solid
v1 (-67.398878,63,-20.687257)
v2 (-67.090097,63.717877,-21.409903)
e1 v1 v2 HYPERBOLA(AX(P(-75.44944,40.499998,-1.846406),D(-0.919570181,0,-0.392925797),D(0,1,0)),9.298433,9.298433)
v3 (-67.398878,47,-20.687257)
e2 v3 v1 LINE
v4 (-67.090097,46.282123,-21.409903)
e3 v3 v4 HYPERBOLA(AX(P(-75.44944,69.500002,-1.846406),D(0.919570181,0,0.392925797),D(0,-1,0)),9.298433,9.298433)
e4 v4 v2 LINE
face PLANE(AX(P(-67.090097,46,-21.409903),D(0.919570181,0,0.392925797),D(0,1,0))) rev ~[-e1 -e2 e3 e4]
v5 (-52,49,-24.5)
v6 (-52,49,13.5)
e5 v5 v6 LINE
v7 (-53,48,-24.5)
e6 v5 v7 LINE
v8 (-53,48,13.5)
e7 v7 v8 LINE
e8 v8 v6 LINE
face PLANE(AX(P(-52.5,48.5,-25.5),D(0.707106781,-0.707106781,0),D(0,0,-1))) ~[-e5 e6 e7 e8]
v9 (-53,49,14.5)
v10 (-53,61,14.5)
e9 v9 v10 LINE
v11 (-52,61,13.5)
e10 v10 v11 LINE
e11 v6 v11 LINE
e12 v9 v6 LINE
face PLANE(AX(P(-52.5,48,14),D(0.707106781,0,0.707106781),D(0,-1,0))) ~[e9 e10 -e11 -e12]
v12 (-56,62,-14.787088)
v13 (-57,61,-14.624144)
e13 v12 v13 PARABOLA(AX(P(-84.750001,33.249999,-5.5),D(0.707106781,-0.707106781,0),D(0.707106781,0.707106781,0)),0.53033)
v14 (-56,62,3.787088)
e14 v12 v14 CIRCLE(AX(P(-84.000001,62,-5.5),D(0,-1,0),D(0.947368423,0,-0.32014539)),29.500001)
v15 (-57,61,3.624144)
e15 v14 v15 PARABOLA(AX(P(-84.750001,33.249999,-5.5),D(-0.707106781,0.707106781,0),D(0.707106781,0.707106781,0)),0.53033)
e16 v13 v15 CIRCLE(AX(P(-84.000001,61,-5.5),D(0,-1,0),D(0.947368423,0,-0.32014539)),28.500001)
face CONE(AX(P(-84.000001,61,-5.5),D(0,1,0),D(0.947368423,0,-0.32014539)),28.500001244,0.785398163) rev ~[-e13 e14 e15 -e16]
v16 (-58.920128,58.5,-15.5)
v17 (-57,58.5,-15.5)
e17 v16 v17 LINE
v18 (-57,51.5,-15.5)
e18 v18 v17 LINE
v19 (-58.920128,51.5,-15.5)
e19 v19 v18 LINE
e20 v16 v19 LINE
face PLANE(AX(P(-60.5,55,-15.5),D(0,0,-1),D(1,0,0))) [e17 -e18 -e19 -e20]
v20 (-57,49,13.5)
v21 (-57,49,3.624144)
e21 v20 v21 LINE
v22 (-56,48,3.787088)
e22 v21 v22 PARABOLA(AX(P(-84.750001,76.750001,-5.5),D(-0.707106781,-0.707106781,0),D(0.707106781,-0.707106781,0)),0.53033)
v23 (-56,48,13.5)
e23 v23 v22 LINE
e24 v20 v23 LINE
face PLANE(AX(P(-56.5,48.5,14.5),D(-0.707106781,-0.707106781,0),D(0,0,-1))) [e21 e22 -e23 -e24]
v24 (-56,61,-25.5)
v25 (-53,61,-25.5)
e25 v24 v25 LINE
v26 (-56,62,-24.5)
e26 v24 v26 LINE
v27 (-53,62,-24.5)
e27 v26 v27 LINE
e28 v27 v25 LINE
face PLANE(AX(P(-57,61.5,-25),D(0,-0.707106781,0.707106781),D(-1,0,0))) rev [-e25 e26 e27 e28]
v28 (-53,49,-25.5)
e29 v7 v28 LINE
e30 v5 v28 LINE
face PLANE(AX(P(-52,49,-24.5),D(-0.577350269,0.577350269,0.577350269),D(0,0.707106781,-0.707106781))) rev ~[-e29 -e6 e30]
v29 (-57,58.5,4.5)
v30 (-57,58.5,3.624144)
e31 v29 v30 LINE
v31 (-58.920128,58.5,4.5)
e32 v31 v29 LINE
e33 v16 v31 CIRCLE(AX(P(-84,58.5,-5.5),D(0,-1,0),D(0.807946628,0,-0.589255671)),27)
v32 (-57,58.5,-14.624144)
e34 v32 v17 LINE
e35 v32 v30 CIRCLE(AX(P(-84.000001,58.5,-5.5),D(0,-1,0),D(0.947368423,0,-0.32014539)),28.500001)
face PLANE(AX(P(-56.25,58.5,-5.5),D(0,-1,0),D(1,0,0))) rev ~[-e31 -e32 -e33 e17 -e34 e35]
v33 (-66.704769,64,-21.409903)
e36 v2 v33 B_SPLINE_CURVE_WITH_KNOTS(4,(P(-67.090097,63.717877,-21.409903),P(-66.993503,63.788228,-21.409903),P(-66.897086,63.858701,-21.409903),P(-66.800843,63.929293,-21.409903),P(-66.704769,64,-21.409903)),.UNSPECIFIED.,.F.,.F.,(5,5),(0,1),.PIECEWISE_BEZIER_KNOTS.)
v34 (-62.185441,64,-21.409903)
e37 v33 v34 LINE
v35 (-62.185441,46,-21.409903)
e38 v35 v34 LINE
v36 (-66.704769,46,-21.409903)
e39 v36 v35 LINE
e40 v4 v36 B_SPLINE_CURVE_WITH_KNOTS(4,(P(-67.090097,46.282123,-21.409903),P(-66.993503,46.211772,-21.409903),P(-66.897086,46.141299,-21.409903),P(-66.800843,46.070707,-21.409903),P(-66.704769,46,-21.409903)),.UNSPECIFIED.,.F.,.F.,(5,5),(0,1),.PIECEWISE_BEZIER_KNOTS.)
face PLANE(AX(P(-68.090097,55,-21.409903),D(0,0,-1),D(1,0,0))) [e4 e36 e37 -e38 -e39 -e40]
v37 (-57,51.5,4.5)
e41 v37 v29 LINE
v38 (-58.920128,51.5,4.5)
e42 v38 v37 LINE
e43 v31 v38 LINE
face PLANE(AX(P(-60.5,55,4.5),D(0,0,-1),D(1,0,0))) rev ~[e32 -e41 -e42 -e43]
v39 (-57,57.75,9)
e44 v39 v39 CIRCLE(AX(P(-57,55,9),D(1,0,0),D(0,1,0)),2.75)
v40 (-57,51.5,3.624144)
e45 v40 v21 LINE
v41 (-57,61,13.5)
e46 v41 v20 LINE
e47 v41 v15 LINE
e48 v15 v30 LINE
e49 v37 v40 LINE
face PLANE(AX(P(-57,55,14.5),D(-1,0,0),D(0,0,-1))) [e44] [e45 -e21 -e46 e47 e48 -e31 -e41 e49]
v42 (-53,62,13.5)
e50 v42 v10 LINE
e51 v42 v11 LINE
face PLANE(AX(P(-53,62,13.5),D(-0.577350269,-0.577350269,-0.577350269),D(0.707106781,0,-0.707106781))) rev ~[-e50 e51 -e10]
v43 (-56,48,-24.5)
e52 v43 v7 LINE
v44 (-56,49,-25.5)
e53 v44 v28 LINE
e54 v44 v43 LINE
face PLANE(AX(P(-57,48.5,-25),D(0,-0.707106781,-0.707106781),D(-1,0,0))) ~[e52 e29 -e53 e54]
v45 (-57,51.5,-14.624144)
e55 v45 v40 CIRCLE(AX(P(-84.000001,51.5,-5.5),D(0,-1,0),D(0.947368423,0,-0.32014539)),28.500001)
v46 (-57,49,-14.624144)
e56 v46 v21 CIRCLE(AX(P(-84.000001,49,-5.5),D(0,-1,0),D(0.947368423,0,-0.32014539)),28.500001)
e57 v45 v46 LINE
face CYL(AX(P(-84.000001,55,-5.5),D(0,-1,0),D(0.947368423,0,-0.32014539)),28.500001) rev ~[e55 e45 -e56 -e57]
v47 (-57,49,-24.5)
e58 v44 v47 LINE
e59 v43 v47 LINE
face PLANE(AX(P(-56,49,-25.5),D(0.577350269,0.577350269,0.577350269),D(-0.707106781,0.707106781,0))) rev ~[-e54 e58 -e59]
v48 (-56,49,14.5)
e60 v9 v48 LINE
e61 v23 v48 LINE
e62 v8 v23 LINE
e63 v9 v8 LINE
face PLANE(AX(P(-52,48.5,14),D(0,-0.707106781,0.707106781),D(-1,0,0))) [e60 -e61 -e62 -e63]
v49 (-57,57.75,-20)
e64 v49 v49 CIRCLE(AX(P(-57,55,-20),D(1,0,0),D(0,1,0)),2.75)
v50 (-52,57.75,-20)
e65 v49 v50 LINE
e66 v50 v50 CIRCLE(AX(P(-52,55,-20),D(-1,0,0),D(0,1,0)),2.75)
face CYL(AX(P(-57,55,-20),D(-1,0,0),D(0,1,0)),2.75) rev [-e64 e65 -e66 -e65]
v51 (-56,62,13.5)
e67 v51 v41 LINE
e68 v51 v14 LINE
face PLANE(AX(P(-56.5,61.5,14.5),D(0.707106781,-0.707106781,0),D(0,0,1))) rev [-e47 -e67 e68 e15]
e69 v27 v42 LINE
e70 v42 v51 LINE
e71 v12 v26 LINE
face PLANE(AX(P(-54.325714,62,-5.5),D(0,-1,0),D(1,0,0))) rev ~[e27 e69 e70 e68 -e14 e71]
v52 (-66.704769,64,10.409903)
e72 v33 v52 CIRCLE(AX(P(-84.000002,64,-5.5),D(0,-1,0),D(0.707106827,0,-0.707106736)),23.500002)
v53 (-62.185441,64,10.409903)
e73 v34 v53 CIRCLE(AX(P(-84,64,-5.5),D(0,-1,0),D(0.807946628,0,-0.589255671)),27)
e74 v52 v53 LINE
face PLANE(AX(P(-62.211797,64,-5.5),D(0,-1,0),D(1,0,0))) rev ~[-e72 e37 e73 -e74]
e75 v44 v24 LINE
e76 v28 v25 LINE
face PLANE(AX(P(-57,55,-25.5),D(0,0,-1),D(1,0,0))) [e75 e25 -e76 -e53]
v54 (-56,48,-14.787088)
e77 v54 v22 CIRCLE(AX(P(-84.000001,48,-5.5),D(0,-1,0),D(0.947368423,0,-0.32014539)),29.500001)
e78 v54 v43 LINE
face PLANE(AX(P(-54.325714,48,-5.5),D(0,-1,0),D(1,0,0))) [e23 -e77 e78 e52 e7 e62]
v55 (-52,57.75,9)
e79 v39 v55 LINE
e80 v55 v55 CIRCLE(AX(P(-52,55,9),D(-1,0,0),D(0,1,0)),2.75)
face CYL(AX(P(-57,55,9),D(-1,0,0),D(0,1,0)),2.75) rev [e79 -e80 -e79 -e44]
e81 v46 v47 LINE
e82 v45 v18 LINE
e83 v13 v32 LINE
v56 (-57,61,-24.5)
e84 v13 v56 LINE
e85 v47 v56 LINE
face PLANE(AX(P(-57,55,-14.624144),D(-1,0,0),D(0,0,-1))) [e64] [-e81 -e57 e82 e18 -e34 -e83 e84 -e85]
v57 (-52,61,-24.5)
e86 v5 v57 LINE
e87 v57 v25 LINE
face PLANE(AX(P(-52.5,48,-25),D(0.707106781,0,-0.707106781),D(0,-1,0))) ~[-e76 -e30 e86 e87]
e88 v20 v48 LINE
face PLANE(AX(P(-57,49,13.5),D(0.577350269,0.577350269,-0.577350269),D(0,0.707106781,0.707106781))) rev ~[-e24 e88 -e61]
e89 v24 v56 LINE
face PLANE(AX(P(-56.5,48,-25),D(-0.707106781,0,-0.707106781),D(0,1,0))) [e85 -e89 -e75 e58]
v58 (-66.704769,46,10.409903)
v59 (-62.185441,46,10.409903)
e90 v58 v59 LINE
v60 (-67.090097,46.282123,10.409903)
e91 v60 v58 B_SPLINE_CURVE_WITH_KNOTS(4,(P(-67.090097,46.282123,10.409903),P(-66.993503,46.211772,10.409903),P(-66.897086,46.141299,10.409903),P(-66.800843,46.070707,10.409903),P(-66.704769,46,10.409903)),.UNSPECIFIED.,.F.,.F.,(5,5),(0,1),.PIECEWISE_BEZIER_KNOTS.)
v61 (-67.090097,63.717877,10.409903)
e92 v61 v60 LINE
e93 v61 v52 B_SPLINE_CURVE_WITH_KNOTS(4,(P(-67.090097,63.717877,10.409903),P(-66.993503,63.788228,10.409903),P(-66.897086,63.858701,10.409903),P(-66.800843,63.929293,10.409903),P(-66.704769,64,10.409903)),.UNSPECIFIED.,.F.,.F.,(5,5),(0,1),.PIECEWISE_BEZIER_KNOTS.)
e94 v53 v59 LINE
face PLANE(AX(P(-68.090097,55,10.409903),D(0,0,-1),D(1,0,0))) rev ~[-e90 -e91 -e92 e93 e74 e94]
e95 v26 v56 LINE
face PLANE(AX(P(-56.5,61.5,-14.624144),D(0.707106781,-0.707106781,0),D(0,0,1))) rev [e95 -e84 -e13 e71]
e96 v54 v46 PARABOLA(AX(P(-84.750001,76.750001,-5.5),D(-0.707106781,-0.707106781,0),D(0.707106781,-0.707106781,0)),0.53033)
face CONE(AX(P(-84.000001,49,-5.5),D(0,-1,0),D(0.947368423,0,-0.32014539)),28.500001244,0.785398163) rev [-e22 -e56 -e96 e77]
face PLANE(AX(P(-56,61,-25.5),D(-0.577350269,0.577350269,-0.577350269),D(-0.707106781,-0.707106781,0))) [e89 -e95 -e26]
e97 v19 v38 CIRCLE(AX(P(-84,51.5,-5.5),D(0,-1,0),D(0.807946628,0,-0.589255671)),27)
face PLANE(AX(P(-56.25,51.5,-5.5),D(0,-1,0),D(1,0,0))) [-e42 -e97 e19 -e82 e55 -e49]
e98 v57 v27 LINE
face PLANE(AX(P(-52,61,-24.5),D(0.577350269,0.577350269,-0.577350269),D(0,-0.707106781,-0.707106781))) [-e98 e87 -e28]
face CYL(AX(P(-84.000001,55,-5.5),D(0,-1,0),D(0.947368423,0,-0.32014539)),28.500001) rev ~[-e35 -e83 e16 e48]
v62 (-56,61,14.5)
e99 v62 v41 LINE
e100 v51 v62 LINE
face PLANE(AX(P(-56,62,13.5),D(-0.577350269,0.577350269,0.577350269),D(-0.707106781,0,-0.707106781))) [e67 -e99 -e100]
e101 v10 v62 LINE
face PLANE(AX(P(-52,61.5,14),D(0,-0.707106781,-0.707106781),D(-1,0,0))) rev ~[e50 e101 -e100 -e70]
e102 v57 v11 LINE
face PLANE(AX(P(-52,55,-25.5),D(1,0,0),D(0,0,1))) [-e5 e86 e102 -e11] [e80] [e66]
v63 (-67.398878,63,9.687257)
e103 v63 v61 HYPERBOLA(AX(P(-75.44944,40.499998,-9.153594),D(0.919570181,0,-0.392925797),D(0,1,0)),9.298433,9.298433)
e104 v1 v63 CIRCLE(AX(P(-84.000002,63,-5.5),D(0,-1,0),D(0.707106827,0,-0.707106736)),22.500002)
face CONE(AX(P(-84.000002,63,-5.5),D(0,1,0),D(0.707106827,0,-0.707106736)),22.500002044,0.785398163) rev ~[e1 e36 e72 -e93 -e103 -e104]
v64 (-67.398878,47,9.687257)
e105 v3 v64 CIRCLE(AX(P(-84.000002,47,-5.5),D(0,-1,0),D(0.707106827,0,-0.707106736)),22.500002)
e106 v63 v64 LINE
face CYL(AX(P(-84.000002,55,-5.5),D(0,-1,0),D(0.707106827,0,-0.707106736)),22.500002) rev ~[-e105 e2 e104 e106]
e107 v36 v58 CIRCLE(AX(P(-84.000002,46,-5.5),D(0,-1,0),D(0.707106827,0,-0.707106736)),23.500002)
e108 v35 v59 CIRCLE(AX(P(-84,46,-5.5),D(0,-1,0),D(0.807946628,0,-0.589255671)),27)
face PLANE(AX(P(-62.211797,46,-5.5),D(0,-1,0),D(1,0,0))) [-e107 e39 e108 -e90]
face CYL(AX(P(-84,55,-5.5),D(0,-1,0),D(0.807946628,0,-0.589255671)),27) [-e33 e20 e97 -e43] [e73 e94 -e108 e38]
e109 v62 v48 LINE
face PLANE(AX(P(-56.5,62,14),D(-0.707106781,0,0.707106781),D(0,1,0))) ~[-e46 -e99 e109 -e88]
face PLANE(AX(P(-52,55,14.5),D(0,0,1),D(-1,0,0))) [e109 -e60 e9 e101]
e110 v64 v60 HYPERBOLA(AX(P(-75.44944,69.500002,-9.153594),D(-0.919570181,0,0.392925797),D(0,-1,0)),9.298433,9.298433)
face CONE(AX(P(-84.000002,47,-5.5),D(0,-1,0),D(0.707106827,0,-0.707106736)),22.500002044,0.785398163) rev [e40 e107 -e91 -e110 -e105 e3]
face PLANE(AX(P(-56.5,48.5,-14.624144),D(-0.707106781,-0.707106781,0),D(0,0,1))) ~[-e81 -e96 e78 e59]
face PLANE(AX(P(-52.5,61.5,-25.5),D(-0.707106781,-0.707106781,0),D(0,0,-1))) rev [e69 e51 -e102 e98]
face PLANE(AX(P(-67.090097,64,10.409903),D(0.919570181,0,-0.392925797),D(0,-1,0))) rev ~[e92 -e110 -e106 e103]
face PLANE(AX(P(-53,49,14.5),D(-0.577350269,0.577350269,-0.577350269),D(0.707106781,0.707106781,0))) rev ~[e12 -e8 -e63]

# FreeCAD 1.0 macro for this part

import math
import FreeCAD as App
import Part
import Sketcher

V = App.Vector
Q = App.Units.Quantity


def edges_at(feature, points):
    """Names of the edges that pass closest to the given points."""
    edges = feature.Shape.Edges
    near = lambda p: min(range(len(edges)), key=lambda i: edges[i].distToShape(Part.Vertex(*p))[0])
    return sorted({f"Edge{near(p) + 1}" for p in points})


def add_polygon(sketch, points):
    """Adds a closed chain of lines whose ends are joined by coincident constraints."""
    first, n = sketch.GeometryCount, len(points)
    for a, b in zip(points, points[1:] + points[:1]):
        sketch.addGeometry(Part.LineSegment(App.Vector(*a, 0), App.Vector(*b, 0)), False)
    for i in range(n):
        sketch.addConstraint(Sketcher.Constraint("Coincident", first + i, 2, first + (i + 1) % n, 1))

doc = App.newDocument("Part")
body = doc.addObject("PartDesign::Body", "Body")

# Sketch on XZ plane
sketch1 = doc.addObject("Sketcher::SketchObject", "Sketch")
body.addObject(sketch1)
sketch1.AttachmentSupport = (doc.XZ_Plane, [""])
sketch1.MapMode = "FlatFace"
sketch1.addGeometry([
    Part.ArcOfCircle(Part.Circle(V(-84, -6, 0), V(0, 0, 1), 27), math.radians(-36), math.radians(36)),
    Part.LineSegment(V(-62, 10, 0), V(-68, 10, 0)),
    Part.ArcOfCircle(Part.Circle(V(-84, -6, 0), V(0, 0, 1), 23), math.radians(-45), math.radians(45)),
    Part.LineSegment(V(-68, -21, 0), V(-62, -21, 0)),
], False)
sketch1.addConstraint([
    Sketcher.Constraint("Coincident", 0, 2, 1, 1),
    Sketcher.Constraint("Coincident", 1, 2, 2, 2),
    Sketcher.Constraint("Coincident", 2, 1, 3, 1),
    Sketcher.Constraint("Coincident", 3, 2, 0, 1),
    Sketcher.Constraint("Horizontal", 1),
    Sketcher.Constraint("Horizontal", 3),
    Sketcher.Constraint("Coincident", 2, 3, 0, 3),
    Sketcher.Constraint("Vertical", 1, 2, 2, 1),
    Sketcher.Constraint("Radius", 0, Q("27 mm")),
    Sketcher.Constraint("DistanceX", 0, 3, -1, 1, Q("84 mm")),
    Sketcher.Constraint("DistanceY", 0, 3, -1, 1, Q("5.5 mm")),
    Sketcher.Constraint("Radius", 2, Q("22.500002 mm")),
    Sketcher.Constraint("DistanceX", 1, 2, 1, 1, Q("5.904656 mm")),
])
pad1 = doc.addObject("PartDesign::Pad", "Pad")
body.addObject(pad1)
pad1.Profile = sketch1
pad1.Length = 18
pad1.Midplane = True

# Sketch on XZ plane
sketch2 = doc.addObject("Sketcher::SketchObject", "Sketch001")
body.addObject(sketch2)
sketch2.AttachmentSupport = (doc.XZ_Plane, [""])
sketch2.MapMode = "FlatFace"
add_polygon(sketch2, [(-60, 4), (-60, -16), (-52, -16), (-52, 4)])  # lines 0-3
sketch2.addConstraint([
    Sketcher.Constraint("Vertical", 0),
    Sketcher.Constraint("Horizontal", 1),
    Sketcher.Constraint("Vertical", 2),
    Sketcher.Constraint("Horizontal", 3),
    Sketcher.Constraint("DistanceY", 0, 2, 0, 1, Q("20 mm")),
    Sketcher.Constraint("DistanceX", 1, 1, 1, 2, Q("8.5 mm")),
    Sketcher.Constraint("DistanceX", 1, 2, -1, 1, Q("52 mm")),
    Sketcher.Constraint("DistanceY", 0, 2, -1, 1, Q("15.5 mm")),
])
pad2 = doc.addObject("PartDesign::Pad", "Pad001")
body.addObject(pad2)
pad2.Profile = sketch2
pad2.Length = 7
pad2.Midplane = True

# Sketch on XZ plane
sketch3 = doc.addObject("Sketcher::SketchObject", "Sketch002")
body.addObject(sketch3)
sketch3.AttachmentSupport = (doc.XZ_Plane, [""])
sketch3.MapMode = "FlatFace"
sketch3.addGeometry([
    Part.LineSegment(V(-52, 14, 0), V(-57, 14, 0)),  # 0
    Part.LineSegment(V(-57, 14, 0), V(-57, 4, 0)),  # 1
    Part.ArcOfCircle(Part.Circle(V(-84, -6, 0), V(0, 0, 1), 29), math.radians(-19), math.radians(19)),  # 2
    Part.LineSegment(V(-57, -15, 0), V(-57, -26, 0)),  # 3
    Part.LineSegment(V(-57, -26, 0), V(-52, -26, 0)),  # 4
    Part.LineSegment(V(-52, -26, 0), V(-52, 14, 0)),  # 5
], False)
sketch3.addConstraint([
    Sketcher.Constraint("Coincident", 0, 2, 1, 1),
    Sketcher.Constraint("Coincident", 1, 2, 2, 2),
    Sketcher.Constraint("Coincident", 2, 1, 3, 1),
    Sketcher.Constraint("Coincident", 3, 2, 4, 1),
    Sketcher.Constraint("Coincident", 4, 2, 5, 1),
    Sketcher.Constraint("Coincident", 5, 2, 0, 1),
    Sketcher.Constraint("Horizontal", 0),
    Sketcher.Constraint("Vertical", 1),
    Sketcher.Constraint("Vertical", 3),
    Sketcher.Constraint("Horizontal", 4),
    Sketcher.Constraint("Vertical", 5),
    Sketcher.Constraint("Vertical", 1, 2, 2, 1),
    Sketcher.Constraint("Equal", 1, 3),
    Sketcher.Constraint("Radius", 2, Q("28.500001 mm")),
    Sketcher.Constraint("DistanceX", 0, 2, 0, 1, Q("5 mm")),
    Sketcher.Constraint("DistanceY", 5, 1, 5, 2, Q("40 mm")),
    Sketcher.Constraint("DistanceX", 2, 3, -1, 1, Q("84.000001 mm")),
    Sketcher.Constraint("DistanceX", 0, 2, -1, 1, Q("57 mm")),
    Sketcher.Constraint("DistanceY", 2, 3, -1, 1, Q("5.5 mm")),
])
pad3 = doc.addObject("PartDesign::Pad", "Pad002")
body.addObject(pad3)
pad3.Profile = sketch3
pad3.Length = 14
pad3.Midplane = True

# Sketch on YZ plane
sketch4 = doc.addObject("Sketcher::SketchObject", "Sketch003")
body.addObject(sketch4)
sketch4.AttachmentSupport = (doc.YZ_Plane, [""])
sketch4.MapMode = "FlatFace"
sketch4.AttachmentOffset = App.Placement(V(0, 0, -57), App.Rotation())
sketch4.addGeometry([
    Part.Circle(V(0, 9, 0), V(0, 0, 1), 2.8),
    Part.Circle(V(0, -20, 0), V(0, 0, 1), 2.8),
], False)
sketch4.addConstraint([
    Sketcher.Constraint("Equal", 0, 1),
    Sketcher.Constraint("PointOnObject", 0, 3, -2),
    Sketcher.Constraint("PointOnObject", 1, 3, -2),
    Sketcher.Constraint("Diameter", 0, Q("5.5 mm")),
    Sketcher.Constraint("DistanceY", -1, 1, 0, 3, Q("9 mm")),
    Sketcher.Constraint("DistanceY", 1, 3, -1, 1, Q("20 mm")),
])
pocket1 = doc.addObject("PartDesign::Pocket", "Pocket")
body.addObject(pocket1)
pocket1.Profile = sketch4
pocket1.Type = "ThroughAll"
pocket1.Reversed = True
doc.recompute()

chamfer = doc.addObject("PartDesign::Chamfer", "Chamfer")
body.addObject(chamfer)
chamfer.Base = (pocket1, edges_at(pocket1, [
    (-57, -7, -20.062),
    (-54.5, -7, -25.5),
    (-52, -7, -5.5),
    (-54.5, -7, 14.5),
    (-57, -7, 9.062),
    (-55.5, -7, -5.5),
    (-52, 0, 14.5),
    (-57, 0, 14.5),
    (-54.5, 7, 14.5),
    (-57, 7, -20.062),
    (-54.5, 7, -25.5),
    (-52, 7, -5.5),
    (-57, 7, 9.062),
    (-55.5, 7, -5.5),
    (-57, 0, -25.5),
    (-52, 0, -25.5),
    (-68.09, 0, -21.41),
    (-68.09, 0, 10.41),
    (-61.5, 9, -5.5),
    (-61.5, -9, -5.5),
]))
chamfer.Size = 1
body2 = doc.addObject("PartDesign::Body", "Body001")
doc.recompute()

body.Placement = App.Placement(V(0, 55, 0), App.Rotation(V(0, 0, 1), 0))
boolean = doc.addObject("PartDesign::Boolean", "Boolean")
body2.addObject(boolean)
boolean.Type = "Fuse"
boolean.addObjects([body])

doc.recompute()
